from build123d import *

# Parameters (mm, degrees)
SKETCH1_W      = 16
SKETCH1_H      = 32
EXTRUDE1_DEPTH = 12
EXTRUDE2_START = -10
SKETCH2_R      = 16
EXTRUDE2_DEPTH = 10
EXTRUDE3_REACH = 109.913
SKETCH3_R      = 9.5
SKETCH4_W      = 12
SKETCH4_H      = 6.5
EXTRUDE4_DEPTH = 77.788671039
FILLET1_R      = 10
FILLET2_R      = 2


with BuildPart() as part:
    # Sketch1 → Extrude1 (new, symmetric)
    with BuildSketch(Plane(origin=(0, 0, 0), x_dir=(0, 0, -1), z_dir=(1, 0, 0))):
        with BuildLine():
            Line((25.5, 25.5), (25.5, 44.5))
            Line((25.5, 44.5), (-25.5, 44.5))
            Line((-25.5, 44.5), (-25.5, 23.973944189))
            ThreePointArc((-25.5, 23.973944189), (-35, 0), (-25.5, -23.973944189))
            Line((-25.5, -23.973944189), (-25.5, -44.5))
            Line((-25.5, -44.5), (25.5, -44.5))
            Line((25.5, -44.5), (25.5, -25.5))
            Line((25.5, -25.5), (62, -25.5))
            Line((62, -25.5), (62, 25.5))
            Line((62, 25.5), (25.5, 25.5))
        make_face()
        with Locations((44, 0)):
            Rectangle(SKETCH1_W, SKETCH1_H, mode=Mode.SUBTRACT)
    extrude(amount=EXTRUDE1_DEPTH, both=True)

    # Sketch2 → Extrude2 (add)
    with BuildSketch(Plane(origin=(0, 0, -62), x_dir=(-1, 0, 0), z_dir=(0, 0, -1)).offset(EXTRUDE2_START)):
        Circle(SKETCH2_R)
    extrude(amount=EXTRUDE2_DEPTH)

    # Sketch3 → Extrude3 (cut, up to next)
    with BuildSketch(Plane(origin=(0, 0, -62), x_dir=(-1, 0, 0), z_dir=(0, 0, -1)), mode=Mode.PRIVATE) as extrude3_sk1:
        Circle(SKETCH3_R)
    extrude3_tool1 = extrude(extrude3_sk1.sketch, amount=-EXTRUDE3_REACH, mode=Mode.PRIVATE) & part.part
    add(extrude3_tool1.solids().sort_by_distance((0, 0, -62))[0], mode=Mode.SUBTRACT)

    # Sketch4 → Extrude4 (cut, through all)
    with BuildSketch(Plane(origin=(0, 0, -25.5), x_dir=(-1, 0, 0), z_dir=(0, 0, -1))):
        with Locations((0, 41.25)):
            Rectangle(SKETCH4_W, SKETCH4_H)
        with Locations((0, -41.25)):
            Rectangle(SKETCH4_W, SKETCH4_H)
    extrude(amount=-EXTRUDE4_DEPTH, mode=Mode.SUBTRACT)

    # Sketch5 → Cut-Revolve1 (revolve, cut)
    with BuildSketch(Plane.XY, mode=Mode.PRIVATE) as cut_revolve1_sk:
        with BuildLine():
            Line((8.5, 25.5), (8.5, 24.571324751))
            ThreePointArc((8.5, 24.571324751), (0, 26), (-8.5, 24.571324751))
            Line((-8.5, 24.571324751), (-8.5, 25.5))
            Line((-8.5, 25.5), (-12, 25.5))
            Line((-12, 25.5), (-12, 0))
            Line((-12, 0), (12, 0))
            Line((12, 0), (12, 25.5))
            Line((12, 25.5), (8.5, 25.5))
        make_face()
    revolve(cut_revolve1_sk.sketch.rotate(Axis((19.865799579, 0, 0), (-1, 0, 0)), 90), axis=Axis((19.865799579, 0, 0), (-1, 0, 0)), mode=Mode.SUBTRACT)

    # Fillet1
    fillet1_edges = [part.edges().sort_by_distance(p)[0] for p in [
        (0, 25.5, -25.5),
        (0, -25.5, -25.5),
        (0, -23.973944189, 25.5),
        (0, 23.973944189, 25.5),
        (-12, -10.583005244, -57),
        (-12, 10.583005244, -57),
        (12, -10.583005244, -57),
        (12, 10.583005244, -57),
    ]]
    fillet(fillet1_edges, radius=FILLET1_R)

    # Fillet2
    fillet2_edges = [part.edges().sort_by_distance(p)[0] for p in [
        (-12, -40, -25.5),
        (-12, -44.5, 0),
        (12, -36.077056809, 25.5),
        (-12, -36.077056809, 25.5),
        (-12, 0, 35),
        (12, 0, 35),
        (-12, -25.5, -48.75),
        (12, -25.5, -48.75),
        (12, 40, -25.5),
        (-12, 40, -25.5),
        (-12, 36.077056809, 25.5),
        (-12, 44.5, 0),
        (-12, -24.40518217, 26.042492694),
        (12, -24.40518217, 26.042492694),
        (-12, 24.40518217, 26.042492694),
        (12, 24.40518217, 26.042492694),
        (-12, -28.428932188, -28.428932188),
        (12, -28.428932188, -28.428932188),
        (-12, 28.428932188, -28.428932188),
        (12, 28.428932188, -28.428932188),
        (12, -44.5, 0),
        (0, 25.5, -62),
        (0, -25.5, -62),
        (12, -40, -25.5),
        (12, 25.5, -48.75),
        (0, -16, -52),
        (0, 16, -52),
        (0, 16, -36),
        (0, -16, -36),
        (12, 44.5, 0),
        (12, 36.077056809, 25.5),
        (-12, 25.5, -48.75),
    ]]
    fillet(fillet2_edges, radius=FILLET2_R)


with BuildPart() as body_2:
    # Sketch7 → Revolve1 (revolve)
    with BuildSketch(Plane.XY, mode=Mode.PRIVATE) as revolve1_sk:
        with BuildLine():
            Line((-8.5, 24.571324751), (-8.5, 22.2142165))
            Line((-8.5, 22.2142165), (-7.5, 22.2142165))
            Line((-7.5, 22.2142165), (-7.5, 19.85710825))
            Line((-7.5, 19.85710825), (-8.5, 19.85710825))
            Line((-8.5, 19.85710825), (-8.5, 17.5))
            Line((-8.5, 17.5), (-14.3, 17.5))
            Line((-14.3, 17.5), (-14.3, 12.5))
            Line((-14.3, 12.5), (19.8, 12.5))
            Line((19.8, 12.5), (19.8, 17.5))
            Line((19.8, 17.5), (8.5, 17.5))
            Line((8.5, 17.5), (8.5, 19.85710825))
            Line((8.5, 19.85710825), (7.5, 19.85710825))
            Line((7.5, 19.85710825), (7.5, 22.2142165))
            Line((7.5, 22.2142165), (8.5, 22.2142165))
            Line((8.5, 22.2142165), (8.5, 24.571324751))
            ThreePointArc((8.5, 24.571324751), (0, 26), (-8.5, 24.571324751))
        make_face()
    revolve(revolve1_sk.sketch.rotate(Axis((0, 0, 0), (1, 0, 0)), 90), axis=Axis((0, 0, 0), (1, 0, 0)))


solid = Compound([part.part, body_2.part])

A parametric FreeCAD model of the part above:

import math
import FreeCAD as App
import Part
import Sketcher
Q = App.Units.Quantity


def edges_at(feature, points):
    """Names of the edges that pass closest to the given points."""
    edges = feature.Shape.Edges
    near = lambda p: min(range(len(edges)), key=lambda i: edges[i].distToShape(Part.Vertex(*p))[0])
    return sorted({f"Edge{near(p) + 1}" for p in points})

doc = App.newDocument("Part")
body = doc.addObject("PartDesign::Body", "Body")

# Sketch on YZ plane
sketch1 = body.newObject("Sketcher::SketchObject", "Sketch")
sketch1.AttachmentSupport = (doc.getObject("YZ_Plane"), [""])
sketch1.MapMode = "FlatFace"
sketch1.addGeometry(Part.LineSegment(App.Vector(26, -26, 0), App.Vector(44, -26, 0)), False)
sketch1.addGeometry(Part.LineSegment(App.Vector(44, -26, 0), App.Vector(44, 26, 0)), False)
sketch1.addGeometry(Part.LineSegment(App.Vector(44, 26, 0), App.Vector(24, 26, 0)), False)
sketch1.addGeometry(Part.ArcOfCircle(Part.Circle(App.Vector(0, 0, 0), App.Vector(0, 0, 1), 35), math.radians(47), math.radians(133)), False)
sketch1.addGeometry(Part.LineSegment(App.Vector(-24, 26, 0), App.Vector(-44, 26, 0)), False)
sketch1.addGeometry(Part.LineSegment(App.Vector(-44, 26, 0), App.Vector(-44, -26, 0)), False)
sketch1.addGeometry(Part.LineSegment(App.Vector(-44, -26, 0), App.Vector(-26, -26, 0)), False)
sketch1.addGeometry(Part.LineSegment(App.Vector(-26, -26, 0), App.Vector(-26, -62, 0)), False)
sketch1.addGeometry(Part.LineSegment(App.Vector(-26, -62, 0), App.Vector(26, -62, 0)), False)
sketch1.addGeometry(Part.LineSegment(App.Vector(26, -62, 0), App.Vector(26, -26, 0)), False)
sketch1.addGeometry(Part.LineSegment(App.Vector(-16, -52, 0), App.Vector(-16, -36, 0)), False)
sketch1.addGeometry(Part.LineSegment(App.Vector(-16, -36, 0), App.Vector(16, -36, 0)), False)
sketch1.addGeometry(Part.LineSegment(App.Vector(16, -36, 0), App.Vector(16, -52, 0)), False)
sketch1.addGeometry(Part.LineSegment(App.Vector(16, -52, 0), App.Vector(-16, -52, 0)), False)
sketch1.addConstraint(Sketcher.Constraint("Coincident", 0, 2, 1, 1))
sketch1.addConstraint(Sketcher.Constraint("Coincident", 1, 2, 2, 1))
sketch1.addConstraint(Sketcher.Constraint("Coincident", 2, 2, 3, 1))
sketch1.addConstraint(Sketcher.Constraint("Coincident", 3, 2, 4, 1))
sketch1.addConstraint(Sketcher.Constraint("Coincident", 4, 2, 5, 1))
sketch1.addConstraint(Sketcher.Constraint("Coincident", 5, 2, 6, 1))
sketch1.addConstraint(Sketcher.Constraint("Coincident", 6, 2, 7, 1))
sketch1.addConstraint(Sketcher.Constraint("Coincident", 7, 2, 8, 1))
sketch1.addConstraint(Sketcher.Constraint("Coincident", 8, 2, 9, 1))
sketch1.addConstraint(Sketcher.Constraint("Coincident", 9, 2, 0, 1))
sketch1.addConstraint(Sketcher.Constraint("Coincident", 10, 2, 11, 1))
sketch1.addConstraint(Sketcher.Constraint("Coincident", 11, 2, 12, 1))
sketch1.addConstraint(Sketcher.Constraint("Coincident", 12, 2, 13, 1))
sketch1.addConstraint(Sketcher.Constraint("Coincident", 13, 2, 10, 1))
sketch1.addConstraint(Sketcher.Constraint("Horizontal", 0))
sketch1.addConstraint(Sketcher.Constraint("Vertical", 1))
sketch1.addConstraint(Sketcher.Constraint("Horizontal", 2))
sketch1.addConstraint(Sketcher.Constraint("Horizontal", 4))
sketch1.addConstraint(Sketcher.Constraint("Vertical", 5))
sketch1.addConstraint(Sketcher.Constraint("Horizontal", 6))
sketch1.addConstraint(Sketcher.Constraint("Vertical", 7))
sketch1.addConstraint(Sketcher.Constraint("Horizontal", 8))
sketch1.addConstraint(Sketcher.Constraint("Vertical", 9))
sketch1.addConstraint(Sketcher.Constraint("Vertical", 10))
sketch1.addConstraint(Sketcher.Constraint("Horizontal", 11))
sketch1.addConstraint(Sketcher.Constraint("Vertical", 12))
sketch1.addConstraint(Sketcher.Constraint("Horizontal", 13))
sketch1.addConstraint(Sketcher.Constraint("Coincident", 3, 3, -1, 1))
sketch1.addConstraint(Sketcher.Constraint("Symmetric", 0, 2, 4, 2, -1, 1))
sketch1.addConstraint(Sketcher.Constraint("Symmetric", 6, 2, 9, 2, -2))
sketch1.addConstraint(Sketcher.Constraint("Horizontal", 2, 2, 3, 2))
sketch1.addConstraint(Sketcher.Constraint("Equal", 8, 1))
sketch1.addConstraint(Sketcher.Constraint("Radius", 3, Q("35 mm")))
sketch1.addConstraint(Sketcher.Constraint("DistanceX", 0, 1, 0, 2, Q("19 mm")))
sketch1.addConstraint(Sketcher.Constraint("DistanceX", 8, 1, 8, 2, Q("51 mm")))
sketch1.addConstraint(Sketcher.Constraint("DistanceX", 11, 1, 11, 2, Q("32 mm")))
sketch1.addConstraint(Sketcher.Constraint("DistanceY", 10, 1, 10, 2, Q("16 mm")))
sketch1.addConstraint(Sketcher.Constraint("DistanceY", 7, 2, 7, 1, Q("36.5 mm")))
sketch1.addConstraint(Sketcher.Constraint("DistanceX", 10, 2, -1, 1, Q("16 mm")))
sketch1.addConstraint(Sketcher.Constraint("DistanceY", 10, 2, -1, 1, Q("36 mm")))
pad1 = body.newObject("PartDesign::Pad", "Pad")
pad1.Profile = sketch1
pad1.Length = 24
pad1.Midplane = True

# Sketch on XY plane
sketch2 = body.newObject("Sketcher::SketchObject", "Sketch001")
sketch2.AttachmentSupport = (doc.getObject("XY_Plane"), [""])
sketch2.MapMode = "FlatFace"
sketch2.AttachmentOffset = App.Placement(App.Vector(0, 0, -52), App.Rotation())
sketch2.addGeometry(Part.Circle(App.Vector(0, 0, 0), App.Vector(0, 0, 1), 16), False)
sketch2.addConstraint(Sketcher.Constraint("Coincident", 0, 3, -1, 1))
sketch2.addConstraint(Sketcher.Constraint("Diameter", 0, Q("32 mm")))
pad2 = body.newObject("PartDesign::Pad", "Pad001")
pad2.Profile = sketch2
pad2.Length = 10
pad2.Reversed = True

# Sketch on XY plane
sketch3 = body.newObject("Sketcher::SketchObject", "Sketch002")
sketch3.AttachmentSupport = (doc.getObject("XY_Plane"), [""])
sketch3.MapMode = "FlatFace"
sketch3.AttachmentOffset = App.Placement(App.Vector(0, 0, -62), App.Rotation())
sketch3.addGeometry(Part.Circle(App.Vector(0, 0, 0), App.Vector(0, 0, 1), 10), False)
sketch3.addConstraint(Sketcher.Constraint("Coincident", 0, 3, -1, 1))
sketch3.addConstraint(Sketcher.Constraint("Diameter", 0, Q("19 mm")))
pocket1 = body.newObject("PartDesign::Pocket", "Pocket")
pocket1.Profile = sketch3
pocket1.Type = "UpToFirst"
pocket1.Reversed = True

# Sketch on XY plane
sketch4 = body.newObject("Sketcher::SketchObject", "Sketch003")
sketch4.AttachmentSupport = (doc.getObject("XY_Plane"), [""])
sketch4.MapMode = "FlatFace"
sketch4.AttachmentOffset = App.Placement(App.Vector(0, 0, -25.5), App.Rotation())
sketch4.addGeometry(Part.LineSegment(App.Vector(6, 44, 0), App.Vector(6, 38, 0)), False)
sketch4.addGeometry(Part.LineSegment(App.Vector(6, 38, 0), App.Vector(-6, 38, 0)), False)
sketch4.addGeometry(Part.LineSegment(App.Vector(-6, 38, 0), App.Vector(-6, 44, 0)), False)
sketch4.addGeometry(Part.LineSegment(App.Vector(-6, 44, 0), App.Vector(6, 44, 0)), False)
sketch4.addGeometry(Part.LineSegment(App.Vector(6, -38, 0), App.Vector(6, -44, 0)), False)
sketch4.addGeometry(Part.LineSegment(App.Vector(6, -44, 0), App.Vector(-6, -44, 0)), False)
sketch4.addGeometry(Part.LineSegment(App.Vector(-6, -44, 0), App.Vector(-6, -38, 0)), False)
sketch4.addGeometry(Part.LineSegment(App.Vector(-6, -38, 0), App.Vector(6, -38, 0)), False)
sketch4.addConstraint(Sketcher.Constraint("Coincident", 0, 2, 1, 1))
sketch4.addConstraint(Sketcher.Constraint("Coincident", 1, 2, 2, 1))
sketch4.addConstraint(Sketcher.Constraint("Coincident", 2, 2, 3, 1))
sketch4.addConstraint(Sketcher.Constraint("Coincident", 3, 2, 0, 1))
sketch4.addConstraint(Sketcher.Constraint("Coincident", 4, 2, 5, 1))
sketch4.addConstraint(Sketcher.Constraint("Coincident", 5, 2, 6, 1))
sketch4.addConstraint(Sketcher.Constraint("Coincident", 6, 2, 7, 1))
sketch4.addConstraint(Sketcher.Constraint("Coincident", 7, 2, 4, 1))
sketch4.addConstraint(Sketcher.Constraint("Vertical", 0))
sketch4.addConstraint(Sketcher.Constraint("Horizontal", 1))
sketch4.addConstraint(Sketcher.Constraint("Vertical", 2))
sketch4.addConstraint(Sketcher.Constraint("Horizontal", 3))
sketch4.addConstraint(Sketcher.Constraint("Vertical", 4))
sketch4.addConstraint(Sketcher.Constraint("Horizontal", 5))
sketch4.addConstraint(Sketcher.Constraint("Vertical", 6))
sketch4.addConstraint(Sketcher.Constraint("Horizontal", 7))
sketch4.addConstraint(Sketcher.Constraint("Symmetric", 2, 2, 4, 2, -1, 1))
sketch4.addConstraint(Sketcher.Constraint("Symmetric", 0, 2, 6, 2, -1, 1))
sketch4.addConstraint(Sketcher.Constraint("Vertical", 3, 2, 4, 2))
sketch4.addConstraint(Sketcher.Constraint("DistanceX", 1, 2, 1, 1, Q("12 mm")))
sketch4.addConstraint(Sketcher.Constraint("DistanceY", 0, 2, 0, 1, Q("6.5 mm")))
sketch4.addConstraint(Sketcher.Constraint("DistanceY", -1, 1, 0, 2, Q("38 mm")))
pocket2 = body.newObject("PartDesign::Pocket", "Pocket001")
pocket2.Profile = sketch4
pocket2.Type = "ThroughAll"
pocket2.Reversed = True

# Sketch on XY plane
sketch5 = body.newObject("Sketcher::SketchObject", "Sketch004")
sketch5.AttachmentSupport = (doc.getObject("XY_Plane"), [""])
sketch5.MapMode = "FlatFace"
sketch5.addGeometry(Part.LineSegment(App.Vector(8.5, 25.5, 0), App.Vector(8.5, 24.6, 0)), False)
sketch5.addGeometry(Part.ArcOfCircle(Part.Circle(App.Vector(0, 0, 0), App.Vector(0, 0, 1), 26), math.radians(71), math.radians(109)), False)
sketch5.addGeometry(Part.LineSegment(App.Vector(-8.5, 24.6, 0), App.Vector(-8.5, 25.5, 0)), False)
sketch5.addGeometry(Part.LineSegment(App.Vector(-8.5, 25.5, 0), App.Vector(-12, 25.5, 0)), False)
sketch5.addGeometry(Part.LineSegment(App.Vector(-12, 25.5, 0), App.Vector(-12, 0, 0)), False)
sketch5.addGeometry(Part.LineSegment(App.Vector(-12, 0, 0), App.Vector(12, 0, 0)), False)
sketch5.addGeometry(Part.LineSegment(App.Vector(12, 0, 0), App.Vector(12, 25.5, 0)), False)
sketch5.addGeometry(Part.LineSegment(App.Vector(12, 25.5, 0), App.Vector(8.5, 25.5, 0)), False)
sketch5.addConstraint(Sketcher.Constraint("Coincident", 0, 2, 1, 1))
sketch5.addConstraint(Sketcher.Constraint("Coincident", 1, 2, 2, 1))
sketch5.addConstraint(Sketcher.Constraint("Coincident", 2, 2, 3, 1))
sketch5.addConstraint(Sketcher.Constraint("Coincident", 3, 2, 4, 1))
sketch5.addConstraint(Sketcher.Constraint("Coincident", 4, 2, 5, 1))
sketch5.addConstraint(Sketcher.Constraint("Coincident", 5, 2, 6, 1))
sketch5.addConstraint(Sketcher.Constraint("Coincident", 6, 2, 7, 1))
sketch5.addConstraint(Sketcher.Constraint("Coincident", 7, 2, 0, 1))
sketch5.addConstraint(Sketcher.Constraint("Vertical", 0))
sketch5.addConstraint(Sketcher.Constraint("Vertical", 2))
sketch5.addConstraint(Sketcher.Constraint("Horizontal", 3))
sketch5.addConstraint(Sketcher.Constraint("Vertical", 4))
sketch5.addConstraint(Sketcher.Constraint("Horizontal", 5))
sketch5.addConstraint(Sketcher.Constraint("Vertical", 6))
sketch5.addConstraint(Sketcher.Constraint("Horizontal", 7))
sketch5.addConstraint(Sketcher.Constraint("Coincident", 1, 3, -1, 1))
sketch5.addConstraint(Sketcher.Constraint("Symmetric", 4, 2, 5, 2, -1, 1))
sketch5.addConstraint(Sketcher.Constraint("Symmetric", 2, 2, 7, 2, -2))
sketch5.addConstraint(Sketcher.Constraint("Radius", 1, Q("26 mm")))
sketch5.addConstraint(Sketcher.Constraint("DistanceX", 5, 1, 5, 2, Q("24 mm")))
sketch5.addConstraint(Sketcher.Constraint("DistanceX", 3, 2, 3, 1, Q("3.5 mm")))
sketch5.addConstraint(Sketcher.Constraint("DistanceY", 4, 2, 4, 1, Q("25.5 mm")))
groove = body.newObject("PartDesign::Groove", "Groove")
groove.Profile = sketch5
groove.ReferenceAxis = (sketch5, ["H_Axis"])
groove.Angle = 360
doc.recompute()

fillet = body.newObject("PartDesign::Fillet", "Fillet")
fillet.Base = (groove, edges_at(groove, [
    (0, 25.5, -25.5),
    (0, -25.5, -25.5),
    (0, -23.974, 25.5),
    (0, 23.974, 25.5),
    (-12, -10.583, -57),
    (-12, 10.583, -57),
    (12, -10.583, -57),
    (12, 10.583, -57),
]))
fillet.Radius = 10
doc.recompute()

fillet2 = body.newObject("PartDesign::Fillet", "Fillet001")
fillet2.Base = (fillet, edges_at(fillet, [
    (-12, -40, -25.5),
    (-12, -44.5, 0),
    (12, -36.077, 25.5),
    (-12, -36.077, 25.5),
    (-12, 0, 35),
    (12, 0, 35),
    (-12, -25.5, -48.75),
    (12, -25.5, -48.75),
    (12, 40, -25.5),
    (-12, 40, -25.5),
    (-12, 36.077, 25.5),
    (-12, 44.5, 0),
    (-12, -24.405, 26.042),
    (12, -24.405, 26.042),
    (-12, 24.405, 26.042),
    (12, 24.405, 26.042),
    (-12, -28.429, -28.429),
    (12, -28.429, -28.429),
    (-12, 28.429, -28.429),
    (12, 28.429, -28.429),
    (12, -44.5, 0),
    (0, 25.5, -62),
    (0, -25.5, -62),
    (12, -40, -25.5),
    (12, 25.5, -48.75),
    (0, -16, -52),
    (0, 16, -52),
    (0, 16, -36),
    (0, -16, -36),
    (12, 44.5, 0),
    (12, 36.077, 25.5),
    (-12, 25.5, -48.75),
]))
fillet2.Radius = 2
body2 = doc.addObject("PartDesign::Body", "Body001")

# Sketch on XY plane
sketch6 = body2.newObject("Sketcher::SketchObject", "Sketch005")
sketch6.AttachmentSupport = (doc.getObject("XY_Plane001"), [""])
sketch6.MapMode = "FlatFace"
sketch6.addGeometry(Part.LineSegment(App.Vector(-8.5, 24.6, 0), App.Vector(-8.5, 22.2, 0)), False)
sketch6.addGeometry(Part.LineSegment(App.Vector(-8.5, 22.2, 0), App.Vector(-7.5, 22.2, 0)), False)
sketch6.addGeometry(Part.LineSegment(App.Vector(-7.5, 22.2, 0), App.Vector(-7.5, 19.9, 0)), False)
sketch6.addGeometry(Part.LineSegment(App.Vector(-7.5, 19.9, 0), App.Vector(-8.5, 19.9, 0)), False)
sketch6.addGeometry(Part.LineSegment(App.Vector(-8.5, 19.9, 0), App.Vector(-8.5, 17.5, 0)), False)
sketch6.addGeometry(Part.LineSegment(App.Vector(-8.5, 17.5, 0), App.Vector(-14.3, 17.5, 0)), False)
sketch6.addGeometry(Part.LineSegment(App.Vector(-14.3, 17.5, 0), App.Vector(-14.3, 12.5, 0)), False)
sketch6.addGeometry(Part.LineSegment(App.Vector(-14.3, 12.5, 0), App.Vector(19.8, 12.5, 0)), False)
sketch6.addGeometry(Part.LineSegment(App.Vector(19.8, 12.5, 0), App.Vector(19.8, 17.5, 0)), False)
sketch6.addGeometry(Part.LineSegment(App.Vector(19.8, 17.5, 0), App.Vector(8.5, 17.5, 0)), False)
sketch6.addGeometry(Part.LineSegment(App.Vector(8.5, 17.5, 0), App.Vector(8.5, 19.9, 0)), False)
sketch6.addGeometry(Part.LineSegment(App.Vector(8.5, 19.9, 0), App.Vector(7.5, 19.9, 0)), False)
sketch6.addGeometry(Part.LineSegment(App.Vector(7.5, 19.9, 0), App.Vector(7.5, 22.2, 0)), False)
sketch6.addGeometry(Part.LineSegment(App.Vector(7.5, 22.2, 0), App.Vector(8.5, 22.2, 0)), False)
sketch6.addGeometry(Part.LineSegment(App.Vector(8.5, 22.2, 0), App.Vector(8.5, 24.6, 0)), False)
sketch6.addGeometry(Part.ArcOfCircle(Part.Circle(App.Vector(0, 0, 0), App.Vector(0, 0, 1), 26), math.radians(71), math.radians(109)), False)
sketch6.addConstraint(Sketcher.Constraint("Coincident", 0, 2, 1, 1))
sketch6.addConstraint(Sketcher.Constraint("Coincident", 1, 2, 2, 1))
sketch6.addConstraint(Sketcher.Constraint("Coincident", 2, 2, 3, 1))
sketch6.addConstraint(Sketcher.Constraint("Coincident", 3, 2, 4, 1))
sketch6.addConstraint(Sketcher.Constraint("Coincident", 4, 2, 5, 1))
sketch6.addConstraint(Sketcher.Constraint("Coincident", 5, 2, 6, 1))
sketch6.addConstraint(Sketcher.Constraint("Coincident", 6, 2, 7, 1))
sketch6.addConstraint(Sketcher.Constraint("Coincident", 7, 2, 8, 1))
sketch6.addConstraint(Sketcher.Constraint("Coincident", 8, 2, 9, 1))
sketch6.addConstraint(Sketcher.Constraint("Coincident", 9, 2, 10, 1))
sketch6.addConstraint(Sketcher.Constraint("Coincident", 10, 2, 11, 1))
sketch6.addConstraint(Sketcher.Constraint("Coincident", 11, 2, 12, 1))
sketch6.addConstraint(Sketcher.Constraint("Coincident", 12, 2, 13, 1))
sketch6.addConstraint(Sketcher.Constraint("Coincident", 13, 2, 14, 1))
sketch6.addConstraint(Sketcher.Constraint("Coincident", 14, 2, 15, 1))
sketch6.addConstraint(Sketcher.Constraint("Coincident", 15, 2, 0, 1))
sketch6.addConstraint(Sketcher.Constraint("Vertical", 0))
sketch6.addConstraint(Sketcher.Constraint("Horizontal", 1))
sketch6.addConstraint(Sketcher.Constraint("Vertical", 2))
sketch6.addConstraint(Sketcher.Constraint("Horizontal", 3))
sketch6.addConstraint(Sketcher.Constraint("Vertical", 4))
sketch6.addConstraint(Sketcher.Constraint("Horizontal", 5))
sketch6.addConstraint(Sketcher.Constraint("Vertical", 6))
sketch6.addConstraint(Sketcher.Constraint("Horizontal", 7))
sketch6.addConstraint(Sketcher.Constraint("Vertical", 8))
sketch6.addConstraint(Sketcher.Constraint("Horizontal", 9))
sketch6.addConstraint(Sketcher.Constraint("Vertical", 10))
sketch6.addConstraint(Sketcher.Constraint("Horizontal", 11))
sketch6.addConstraint(Sketcher.Constraint("Vertical", 12))
sketch6.addConstraint(Sketcher.Constraint("Horizontal", 13))
sketch6.addConstraint(Sketcher.Constraint("Vertical", 14))
sketch6.addConstraint(Sketcher.Constraint("Coincident", 15, 3, -1, 1))
sketch6.addConstraint(Sketcher.Constraint("Symmetric", 4, 2, 9, 2, -2))
sketch6.addConstraint(Sketcher.Constraint("Symmetric", 2, 2, 11, 2, -2))
sketch6.addConstraint(Sketcher.Constraint("Symmetric", 0, 2, 13, 2, -2))
sketch6.addConstraint(Sketcher.Constraint("Vertical", 0, 2, 3, 2))
sketch6.addConstraint(Sketcher.Constraint("Equal", 0, 2))
sketch6.addConstraint(Sketcher.Constraint("Equal", 2, 4))
sketch6.addConstraint(Sketcher.Constraint("Radius", 15, Q("26 mm")))
sketch6.addConstraint(Sketcher.Constraint("DistanceX", 1, 1, 1, 2, Q("1 mm")))
sketch6.addConstraint(Sketcher.Constraint("DistanceY", 6, 2, 6, 1, Q("5 mm")))
sketch6.addConstraint(Sketcher.Constraint("DistanceX", 5, 2, 5, 1, Q("5.8 mm")))
sketch6.addConstraint(Sketcher.Constraint("DistanceX", 7, 1, 7, 2, Q("34.1 mm")))
sketch6.addConstraint(Sketcher.Constraint("DistanceX", 9, 2, 9, 1, Q("11.3 mm")))
sketch6.addConstraint(Sketcher.Constraint("DistanceY", -1, 1, 4, 2, Q("17.5 mm")))
revolution = body2.newObject("PartDesign::Revolution", "Revolution")
revolution.Profile = sketch6
revolution.ReferenceAxis = (sketch6, ["H_Axis"])
revolution.Angle = 360

doc.recompute()
